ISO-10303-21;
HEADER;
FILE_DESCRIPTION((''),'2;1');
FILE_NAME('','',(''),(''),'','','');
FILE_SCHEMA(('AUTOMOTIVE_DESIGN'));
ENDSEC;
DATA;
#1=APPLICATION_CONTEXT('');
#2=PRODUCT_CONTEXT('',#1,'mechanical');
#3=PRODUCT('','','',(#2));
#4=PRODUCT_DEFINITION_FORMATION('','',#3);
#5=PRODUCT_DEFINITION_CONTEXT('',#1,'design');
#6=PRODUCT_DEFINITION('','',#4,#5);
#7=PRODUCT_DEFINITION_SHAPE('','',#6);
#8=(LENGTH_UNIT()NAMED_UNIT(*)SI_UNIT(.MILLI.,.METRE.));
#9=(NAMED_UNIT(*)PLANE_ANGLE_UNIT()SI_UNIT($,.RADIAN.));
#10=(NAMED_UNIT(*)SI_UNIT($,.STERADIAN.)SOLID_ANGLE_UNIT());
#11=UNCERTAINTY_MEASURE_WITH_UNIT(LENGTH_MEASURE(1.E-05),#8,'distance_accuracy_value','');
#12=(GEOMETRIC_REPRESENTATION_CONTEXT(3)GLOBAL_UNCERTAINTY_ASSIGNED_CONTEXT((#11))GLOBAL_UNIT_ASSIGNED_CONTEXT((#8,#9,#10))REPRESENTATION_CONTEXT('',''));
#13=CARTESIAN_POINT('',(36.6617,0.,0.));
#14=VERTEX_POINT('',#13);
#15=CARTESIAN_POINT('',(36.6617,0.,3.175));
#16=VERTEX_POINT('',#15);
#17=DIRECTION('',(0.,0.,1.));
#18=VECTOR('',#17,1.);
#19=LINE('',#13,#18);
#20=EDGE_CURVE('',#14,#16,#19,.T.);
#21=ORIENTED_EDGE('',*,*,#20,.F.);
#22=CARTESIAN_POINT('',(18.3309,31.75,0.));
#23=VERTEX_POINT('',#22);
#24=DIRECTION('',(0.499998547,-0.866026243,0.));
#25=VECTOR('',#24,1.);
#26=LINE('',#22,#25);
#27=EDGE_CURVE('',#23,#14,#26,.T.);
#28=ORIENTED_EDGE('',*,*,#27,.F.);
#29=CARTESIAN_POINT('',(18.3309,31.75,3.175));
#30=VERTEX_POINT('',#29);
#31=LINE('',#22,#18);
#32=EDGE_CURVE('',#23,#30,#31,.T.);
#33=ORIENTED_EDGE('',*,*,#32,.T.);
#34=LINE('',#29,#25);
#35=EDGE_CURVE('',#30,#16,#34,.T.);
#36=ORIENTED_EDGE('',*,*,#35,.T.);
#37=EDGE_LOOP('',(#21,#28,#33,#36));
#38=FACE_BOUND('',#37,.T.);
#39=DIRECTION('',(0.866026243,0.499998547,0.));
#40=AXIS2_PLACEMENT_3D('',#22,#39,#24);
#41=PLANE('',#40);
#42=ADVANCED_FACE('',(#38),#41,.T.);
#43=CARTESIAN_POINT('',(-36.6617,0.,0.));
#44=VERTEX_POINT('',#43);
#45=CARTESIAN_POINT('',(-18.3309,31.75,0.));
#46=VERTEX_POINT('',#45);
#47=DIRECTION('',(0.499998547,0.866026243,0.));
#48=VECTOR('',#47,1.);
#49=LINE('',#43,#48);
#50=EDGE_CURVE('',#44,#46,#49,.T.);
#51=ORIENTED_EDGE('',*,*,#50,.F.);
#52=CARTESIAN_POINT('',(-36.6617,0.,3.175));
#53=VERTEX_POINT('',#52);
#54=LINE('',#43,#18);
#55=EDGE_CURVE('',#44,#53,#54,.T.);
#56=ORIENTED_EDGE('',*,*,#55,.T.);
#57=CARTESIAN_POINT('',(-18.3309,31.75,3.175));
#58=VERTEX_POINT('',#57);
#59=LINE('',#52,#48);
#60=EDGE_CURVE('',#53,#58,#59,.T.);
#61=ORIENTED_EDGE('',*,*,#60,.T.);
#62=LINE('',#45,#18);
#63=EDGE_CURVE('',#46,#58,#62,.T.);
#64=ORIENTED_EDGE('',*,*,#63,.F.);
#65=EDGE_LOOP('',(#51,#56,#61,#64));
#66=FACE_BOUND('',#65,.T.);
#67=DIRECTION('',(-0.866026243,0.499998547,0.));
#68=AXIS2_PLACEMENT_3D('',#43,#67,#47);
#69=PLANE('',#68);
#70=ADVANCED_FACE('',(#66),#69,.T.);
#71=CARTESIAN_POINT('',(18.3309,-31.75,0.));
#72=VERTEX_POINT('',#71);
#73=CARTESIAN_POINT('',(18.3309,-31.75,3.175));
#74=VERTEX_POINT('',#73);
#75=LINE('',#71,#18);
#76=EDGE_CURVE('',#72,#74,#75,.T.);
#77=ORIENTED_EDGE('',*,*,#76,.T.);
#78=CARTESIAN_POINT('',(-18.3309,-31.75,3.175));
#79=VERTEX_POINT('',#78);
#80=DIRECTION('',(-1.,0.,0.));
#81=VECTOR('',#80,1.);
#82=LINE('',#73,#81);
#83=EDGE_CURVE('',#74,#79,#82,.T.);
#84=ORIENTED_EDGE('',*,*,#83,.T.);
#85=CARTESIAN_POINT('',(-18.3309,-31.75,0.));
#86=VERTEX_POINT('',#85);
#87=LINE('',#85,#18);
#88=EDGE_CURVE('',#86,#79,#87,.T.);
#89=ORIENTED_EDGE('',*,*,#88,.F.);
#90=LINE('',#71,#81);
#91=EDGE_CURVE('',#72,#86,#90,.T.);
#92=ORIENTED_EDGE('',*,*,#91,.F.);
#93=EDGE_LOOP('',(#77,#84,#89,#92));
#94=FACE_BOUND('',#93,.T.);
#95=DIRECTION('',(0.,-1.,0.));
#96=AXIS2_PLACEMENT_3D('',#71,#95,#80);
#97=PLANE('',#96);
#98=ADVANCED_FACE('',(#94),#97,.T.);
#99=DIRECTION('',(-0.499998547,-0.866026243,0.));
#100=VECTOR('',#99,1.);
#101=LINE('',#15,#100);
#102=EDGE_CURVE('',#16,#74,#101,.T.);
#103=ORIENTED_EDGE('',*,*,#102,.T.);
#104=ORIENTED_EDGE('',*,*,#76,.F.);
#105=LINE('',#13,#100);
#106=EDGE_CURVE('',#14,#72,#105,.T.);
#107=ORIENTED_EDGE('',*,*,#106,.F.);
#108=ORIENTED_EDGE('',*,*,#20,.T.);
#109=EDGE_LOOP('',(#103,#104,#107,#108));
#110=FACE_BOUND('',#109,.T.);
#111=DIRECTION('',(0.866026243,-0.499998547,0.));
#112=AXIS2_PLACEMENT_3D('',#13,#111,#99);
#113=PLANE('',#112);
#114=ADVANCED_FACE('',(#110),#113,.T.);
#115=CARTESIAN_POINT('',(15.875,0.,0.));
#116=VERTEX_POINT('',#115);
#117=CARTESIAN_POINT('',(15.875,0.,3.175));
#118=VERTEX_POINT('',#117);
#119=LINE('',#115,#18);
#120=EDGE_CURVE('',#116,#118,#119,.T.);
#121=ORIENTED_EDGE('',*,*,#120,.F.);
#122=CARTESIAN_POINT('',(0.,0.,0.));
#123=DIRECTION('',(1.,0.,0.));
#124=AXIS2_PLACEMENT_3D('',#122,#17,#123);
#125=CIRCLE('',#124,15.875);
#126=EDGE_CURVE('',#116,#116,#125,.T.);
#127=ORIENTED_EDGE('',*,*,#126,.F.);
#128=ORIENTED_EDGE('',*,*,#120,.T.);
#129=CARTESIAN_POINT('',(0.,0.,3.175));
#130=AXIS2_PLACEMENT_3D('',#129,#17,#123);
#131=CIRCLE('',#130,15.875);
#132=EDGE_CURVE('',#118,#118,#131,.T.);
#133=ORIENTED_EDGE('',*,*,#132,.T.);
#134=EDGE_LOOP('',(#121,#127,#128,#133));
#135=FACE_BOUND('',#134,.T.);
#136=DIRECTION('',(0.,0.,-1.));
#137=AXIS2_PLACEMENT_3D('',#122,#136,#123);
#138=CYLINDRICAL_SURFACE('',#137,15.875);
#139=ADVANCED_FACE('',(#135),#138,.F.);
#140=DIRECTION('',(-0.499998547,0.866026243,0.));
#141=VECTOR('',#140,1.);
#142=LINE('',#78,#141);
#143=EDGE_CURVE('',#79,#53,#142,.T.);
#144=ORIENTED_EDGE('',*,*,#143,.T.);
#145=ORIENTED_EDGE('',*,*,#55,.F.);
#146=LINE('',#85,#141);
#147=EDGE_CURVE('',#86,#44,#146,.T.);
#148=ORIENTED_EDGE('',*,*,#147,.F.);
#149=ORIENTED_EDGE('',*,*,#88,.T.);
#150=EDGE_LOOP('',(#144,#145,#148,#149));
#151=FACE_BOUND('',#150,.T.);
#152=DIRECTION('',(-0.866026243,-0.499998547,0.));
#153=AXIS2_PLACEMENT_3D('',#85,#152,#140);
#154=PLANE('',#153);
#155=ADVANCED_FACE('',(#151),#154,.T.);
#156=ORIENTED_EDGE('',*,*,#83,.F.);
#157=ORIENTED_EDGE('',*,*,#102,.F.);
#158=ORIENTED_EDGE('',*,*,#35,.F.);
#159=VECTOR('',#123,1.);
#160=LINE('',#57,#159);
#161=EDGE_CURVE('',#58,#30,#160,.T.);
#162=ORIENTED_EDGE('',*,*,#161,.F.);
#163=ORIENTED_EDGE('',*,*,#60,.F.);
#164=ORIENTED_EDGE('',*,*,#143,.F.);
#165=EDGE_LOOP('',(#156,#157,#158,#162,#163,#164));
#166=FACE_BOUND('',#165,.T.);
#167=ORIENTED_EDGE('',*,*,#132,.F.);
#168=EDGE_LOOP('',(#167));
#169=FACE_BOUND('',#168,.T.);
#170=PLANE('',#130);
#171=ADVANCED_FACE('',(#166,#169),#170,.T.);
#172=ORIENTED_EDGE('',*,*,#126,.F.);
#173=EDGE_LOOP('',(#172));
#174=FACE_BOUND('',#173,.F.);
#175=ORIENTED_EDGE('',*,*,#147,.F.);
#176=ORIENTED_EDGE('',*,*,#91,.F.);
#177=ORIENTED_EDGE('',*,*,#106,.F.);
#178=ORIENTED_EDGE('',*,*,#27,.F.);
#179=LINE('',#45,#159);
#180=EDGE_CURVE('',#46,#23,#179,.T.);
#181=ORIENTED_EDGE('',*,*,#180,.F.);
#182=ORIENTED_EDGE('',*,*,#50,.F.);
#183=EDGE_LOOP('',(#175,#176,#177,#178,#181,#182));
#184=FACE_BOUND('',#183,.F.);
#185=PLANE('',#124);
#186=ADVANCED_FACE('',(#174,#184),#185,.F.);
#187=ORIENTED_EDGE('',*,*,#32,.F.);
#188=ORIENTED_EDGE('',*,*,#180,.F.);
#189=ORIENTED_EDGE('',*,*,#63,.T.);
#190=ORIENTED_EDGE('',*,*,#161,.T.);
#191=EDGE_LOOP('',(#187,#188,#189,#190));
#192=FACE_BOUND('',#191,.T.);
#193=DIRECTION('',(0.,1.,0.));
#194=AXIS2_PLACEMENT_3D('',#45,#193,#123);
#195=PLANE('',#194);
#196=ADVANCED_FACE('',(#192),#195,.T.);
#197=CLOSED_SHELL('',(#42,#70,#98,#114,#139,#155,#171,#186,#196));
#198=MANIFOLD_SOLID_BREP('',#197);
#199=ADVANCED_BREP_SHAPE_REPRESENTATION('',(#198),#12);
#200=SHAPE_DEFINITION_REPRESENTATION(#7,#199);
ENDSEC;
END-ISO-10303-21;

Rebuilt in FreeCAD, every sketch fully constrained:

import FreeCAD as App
import Part
import Sketcher

V = App.Vector
Q = App.Units.Quantity

doc = App.newDocument("Part")
body = doc.addObject("PartDesign::Body", "Body")

# Sketch on XY plane
sketch1 = body.newObject("Sketcher::SketchObject", "Sketch")
sketch1.AttachmentSupport = (doc.getObject("XY_Plane"), [""])
sketch1.MapMode = "FlatFace"
sketch1.addGeometry(Part.LineSegment(V(37, 0, 0), V(18, 32, 0)), False)
sketch1.addGeometry(Part.LineSegment(V(18, 32, 0), V(-18, 32, 0)), False)
sketch1.addGeometry(Part.LineSegment(V(-18, 32, 0), V(-37, 0, 0)), False)
sketch1.addGeometry(Part.LineSegment(V(-37, 0, 0), V(-18, -32, 0)), False)
sketch1.addGeometry(Part.LineSegment(V(-18, -32, 0), V(18, -32, 0)), False)
sketch1.addGeometry(Part.LineSegment(V(18, -32, 0), V(37, 0, 0)), False)
sketch1.addGeometry(Part.Circle(V(0, 0, 0), V(0, 0, 1), 16), False)
sketch1.addConstraint(Sketcher.Constraint("Coincident", 0, 2, 1, 1))
sketch1.addConstraint(Sketcher.Constraint("Coincident", 1, 2, 2, 1))
sketch1.addConstraint(Sketcher.Constraint("Coincident", 2, 2, 3, 1))
sketch1.addConstraint(Sketcher.Constraint("Coincident", 3, 2, 4, 1))
sketch1.addConstraint(Sketcher.Constraint("Coincident", 4, 2, 5, 1))
sketch1.addConstraint(Sketcher.Constraint("Coincident", 5, 2, 0, 1))
sketch1.addConstraint(Sketcher.Constraint("Horizontal", 1))
sketch1.addConstraint(Sketcher.Constraint("Horizontal", 4))
sketch1.addConstraint(Sketcher.Constraint("Coincident", 6, 3, -1, 1))
sketch1.addConstraint(Sketcher.Constraint("Symmetric", 0, 2, 3, 2, -1, 1))
sketch1.addConstraint(Sketcher.Constraint("Symmetric", 2, 2, 5, 2, -1, 1))
sketch1.addConstraint(Sketcher.Constraint("PointOnObject", 2, 2, -1))
sketch1.addConstraint(Sketcher.Constraint("Parallel", 2, 5))
sketch1.addConstraint(Sketcher.Constraint("Vertical", 1, 2, 3, 2))
sketch1.addConstraint(Sketcher.Constraint("Diameter", 6, Q("1.25 in")))
sketch1.addConstraint(Sketcher.Constraint("DistanceY", 3, 2, 1, 2, Q("2.5 in")))
sketch1.addConstraint(Sketcher.Constraint("Angle", 0, Q("120 deg")))
sketch1.addConstraint(Sketcher.Constraint("DistanceX", 1, 2, 1, 1, Q("36.6618 mm")))
pad1 = body.newObject("PartDesign::Pad", "Pad")
pad1.Profile = sketch1
pad1.Length = Q("0.125 in")

doc.recompute()
